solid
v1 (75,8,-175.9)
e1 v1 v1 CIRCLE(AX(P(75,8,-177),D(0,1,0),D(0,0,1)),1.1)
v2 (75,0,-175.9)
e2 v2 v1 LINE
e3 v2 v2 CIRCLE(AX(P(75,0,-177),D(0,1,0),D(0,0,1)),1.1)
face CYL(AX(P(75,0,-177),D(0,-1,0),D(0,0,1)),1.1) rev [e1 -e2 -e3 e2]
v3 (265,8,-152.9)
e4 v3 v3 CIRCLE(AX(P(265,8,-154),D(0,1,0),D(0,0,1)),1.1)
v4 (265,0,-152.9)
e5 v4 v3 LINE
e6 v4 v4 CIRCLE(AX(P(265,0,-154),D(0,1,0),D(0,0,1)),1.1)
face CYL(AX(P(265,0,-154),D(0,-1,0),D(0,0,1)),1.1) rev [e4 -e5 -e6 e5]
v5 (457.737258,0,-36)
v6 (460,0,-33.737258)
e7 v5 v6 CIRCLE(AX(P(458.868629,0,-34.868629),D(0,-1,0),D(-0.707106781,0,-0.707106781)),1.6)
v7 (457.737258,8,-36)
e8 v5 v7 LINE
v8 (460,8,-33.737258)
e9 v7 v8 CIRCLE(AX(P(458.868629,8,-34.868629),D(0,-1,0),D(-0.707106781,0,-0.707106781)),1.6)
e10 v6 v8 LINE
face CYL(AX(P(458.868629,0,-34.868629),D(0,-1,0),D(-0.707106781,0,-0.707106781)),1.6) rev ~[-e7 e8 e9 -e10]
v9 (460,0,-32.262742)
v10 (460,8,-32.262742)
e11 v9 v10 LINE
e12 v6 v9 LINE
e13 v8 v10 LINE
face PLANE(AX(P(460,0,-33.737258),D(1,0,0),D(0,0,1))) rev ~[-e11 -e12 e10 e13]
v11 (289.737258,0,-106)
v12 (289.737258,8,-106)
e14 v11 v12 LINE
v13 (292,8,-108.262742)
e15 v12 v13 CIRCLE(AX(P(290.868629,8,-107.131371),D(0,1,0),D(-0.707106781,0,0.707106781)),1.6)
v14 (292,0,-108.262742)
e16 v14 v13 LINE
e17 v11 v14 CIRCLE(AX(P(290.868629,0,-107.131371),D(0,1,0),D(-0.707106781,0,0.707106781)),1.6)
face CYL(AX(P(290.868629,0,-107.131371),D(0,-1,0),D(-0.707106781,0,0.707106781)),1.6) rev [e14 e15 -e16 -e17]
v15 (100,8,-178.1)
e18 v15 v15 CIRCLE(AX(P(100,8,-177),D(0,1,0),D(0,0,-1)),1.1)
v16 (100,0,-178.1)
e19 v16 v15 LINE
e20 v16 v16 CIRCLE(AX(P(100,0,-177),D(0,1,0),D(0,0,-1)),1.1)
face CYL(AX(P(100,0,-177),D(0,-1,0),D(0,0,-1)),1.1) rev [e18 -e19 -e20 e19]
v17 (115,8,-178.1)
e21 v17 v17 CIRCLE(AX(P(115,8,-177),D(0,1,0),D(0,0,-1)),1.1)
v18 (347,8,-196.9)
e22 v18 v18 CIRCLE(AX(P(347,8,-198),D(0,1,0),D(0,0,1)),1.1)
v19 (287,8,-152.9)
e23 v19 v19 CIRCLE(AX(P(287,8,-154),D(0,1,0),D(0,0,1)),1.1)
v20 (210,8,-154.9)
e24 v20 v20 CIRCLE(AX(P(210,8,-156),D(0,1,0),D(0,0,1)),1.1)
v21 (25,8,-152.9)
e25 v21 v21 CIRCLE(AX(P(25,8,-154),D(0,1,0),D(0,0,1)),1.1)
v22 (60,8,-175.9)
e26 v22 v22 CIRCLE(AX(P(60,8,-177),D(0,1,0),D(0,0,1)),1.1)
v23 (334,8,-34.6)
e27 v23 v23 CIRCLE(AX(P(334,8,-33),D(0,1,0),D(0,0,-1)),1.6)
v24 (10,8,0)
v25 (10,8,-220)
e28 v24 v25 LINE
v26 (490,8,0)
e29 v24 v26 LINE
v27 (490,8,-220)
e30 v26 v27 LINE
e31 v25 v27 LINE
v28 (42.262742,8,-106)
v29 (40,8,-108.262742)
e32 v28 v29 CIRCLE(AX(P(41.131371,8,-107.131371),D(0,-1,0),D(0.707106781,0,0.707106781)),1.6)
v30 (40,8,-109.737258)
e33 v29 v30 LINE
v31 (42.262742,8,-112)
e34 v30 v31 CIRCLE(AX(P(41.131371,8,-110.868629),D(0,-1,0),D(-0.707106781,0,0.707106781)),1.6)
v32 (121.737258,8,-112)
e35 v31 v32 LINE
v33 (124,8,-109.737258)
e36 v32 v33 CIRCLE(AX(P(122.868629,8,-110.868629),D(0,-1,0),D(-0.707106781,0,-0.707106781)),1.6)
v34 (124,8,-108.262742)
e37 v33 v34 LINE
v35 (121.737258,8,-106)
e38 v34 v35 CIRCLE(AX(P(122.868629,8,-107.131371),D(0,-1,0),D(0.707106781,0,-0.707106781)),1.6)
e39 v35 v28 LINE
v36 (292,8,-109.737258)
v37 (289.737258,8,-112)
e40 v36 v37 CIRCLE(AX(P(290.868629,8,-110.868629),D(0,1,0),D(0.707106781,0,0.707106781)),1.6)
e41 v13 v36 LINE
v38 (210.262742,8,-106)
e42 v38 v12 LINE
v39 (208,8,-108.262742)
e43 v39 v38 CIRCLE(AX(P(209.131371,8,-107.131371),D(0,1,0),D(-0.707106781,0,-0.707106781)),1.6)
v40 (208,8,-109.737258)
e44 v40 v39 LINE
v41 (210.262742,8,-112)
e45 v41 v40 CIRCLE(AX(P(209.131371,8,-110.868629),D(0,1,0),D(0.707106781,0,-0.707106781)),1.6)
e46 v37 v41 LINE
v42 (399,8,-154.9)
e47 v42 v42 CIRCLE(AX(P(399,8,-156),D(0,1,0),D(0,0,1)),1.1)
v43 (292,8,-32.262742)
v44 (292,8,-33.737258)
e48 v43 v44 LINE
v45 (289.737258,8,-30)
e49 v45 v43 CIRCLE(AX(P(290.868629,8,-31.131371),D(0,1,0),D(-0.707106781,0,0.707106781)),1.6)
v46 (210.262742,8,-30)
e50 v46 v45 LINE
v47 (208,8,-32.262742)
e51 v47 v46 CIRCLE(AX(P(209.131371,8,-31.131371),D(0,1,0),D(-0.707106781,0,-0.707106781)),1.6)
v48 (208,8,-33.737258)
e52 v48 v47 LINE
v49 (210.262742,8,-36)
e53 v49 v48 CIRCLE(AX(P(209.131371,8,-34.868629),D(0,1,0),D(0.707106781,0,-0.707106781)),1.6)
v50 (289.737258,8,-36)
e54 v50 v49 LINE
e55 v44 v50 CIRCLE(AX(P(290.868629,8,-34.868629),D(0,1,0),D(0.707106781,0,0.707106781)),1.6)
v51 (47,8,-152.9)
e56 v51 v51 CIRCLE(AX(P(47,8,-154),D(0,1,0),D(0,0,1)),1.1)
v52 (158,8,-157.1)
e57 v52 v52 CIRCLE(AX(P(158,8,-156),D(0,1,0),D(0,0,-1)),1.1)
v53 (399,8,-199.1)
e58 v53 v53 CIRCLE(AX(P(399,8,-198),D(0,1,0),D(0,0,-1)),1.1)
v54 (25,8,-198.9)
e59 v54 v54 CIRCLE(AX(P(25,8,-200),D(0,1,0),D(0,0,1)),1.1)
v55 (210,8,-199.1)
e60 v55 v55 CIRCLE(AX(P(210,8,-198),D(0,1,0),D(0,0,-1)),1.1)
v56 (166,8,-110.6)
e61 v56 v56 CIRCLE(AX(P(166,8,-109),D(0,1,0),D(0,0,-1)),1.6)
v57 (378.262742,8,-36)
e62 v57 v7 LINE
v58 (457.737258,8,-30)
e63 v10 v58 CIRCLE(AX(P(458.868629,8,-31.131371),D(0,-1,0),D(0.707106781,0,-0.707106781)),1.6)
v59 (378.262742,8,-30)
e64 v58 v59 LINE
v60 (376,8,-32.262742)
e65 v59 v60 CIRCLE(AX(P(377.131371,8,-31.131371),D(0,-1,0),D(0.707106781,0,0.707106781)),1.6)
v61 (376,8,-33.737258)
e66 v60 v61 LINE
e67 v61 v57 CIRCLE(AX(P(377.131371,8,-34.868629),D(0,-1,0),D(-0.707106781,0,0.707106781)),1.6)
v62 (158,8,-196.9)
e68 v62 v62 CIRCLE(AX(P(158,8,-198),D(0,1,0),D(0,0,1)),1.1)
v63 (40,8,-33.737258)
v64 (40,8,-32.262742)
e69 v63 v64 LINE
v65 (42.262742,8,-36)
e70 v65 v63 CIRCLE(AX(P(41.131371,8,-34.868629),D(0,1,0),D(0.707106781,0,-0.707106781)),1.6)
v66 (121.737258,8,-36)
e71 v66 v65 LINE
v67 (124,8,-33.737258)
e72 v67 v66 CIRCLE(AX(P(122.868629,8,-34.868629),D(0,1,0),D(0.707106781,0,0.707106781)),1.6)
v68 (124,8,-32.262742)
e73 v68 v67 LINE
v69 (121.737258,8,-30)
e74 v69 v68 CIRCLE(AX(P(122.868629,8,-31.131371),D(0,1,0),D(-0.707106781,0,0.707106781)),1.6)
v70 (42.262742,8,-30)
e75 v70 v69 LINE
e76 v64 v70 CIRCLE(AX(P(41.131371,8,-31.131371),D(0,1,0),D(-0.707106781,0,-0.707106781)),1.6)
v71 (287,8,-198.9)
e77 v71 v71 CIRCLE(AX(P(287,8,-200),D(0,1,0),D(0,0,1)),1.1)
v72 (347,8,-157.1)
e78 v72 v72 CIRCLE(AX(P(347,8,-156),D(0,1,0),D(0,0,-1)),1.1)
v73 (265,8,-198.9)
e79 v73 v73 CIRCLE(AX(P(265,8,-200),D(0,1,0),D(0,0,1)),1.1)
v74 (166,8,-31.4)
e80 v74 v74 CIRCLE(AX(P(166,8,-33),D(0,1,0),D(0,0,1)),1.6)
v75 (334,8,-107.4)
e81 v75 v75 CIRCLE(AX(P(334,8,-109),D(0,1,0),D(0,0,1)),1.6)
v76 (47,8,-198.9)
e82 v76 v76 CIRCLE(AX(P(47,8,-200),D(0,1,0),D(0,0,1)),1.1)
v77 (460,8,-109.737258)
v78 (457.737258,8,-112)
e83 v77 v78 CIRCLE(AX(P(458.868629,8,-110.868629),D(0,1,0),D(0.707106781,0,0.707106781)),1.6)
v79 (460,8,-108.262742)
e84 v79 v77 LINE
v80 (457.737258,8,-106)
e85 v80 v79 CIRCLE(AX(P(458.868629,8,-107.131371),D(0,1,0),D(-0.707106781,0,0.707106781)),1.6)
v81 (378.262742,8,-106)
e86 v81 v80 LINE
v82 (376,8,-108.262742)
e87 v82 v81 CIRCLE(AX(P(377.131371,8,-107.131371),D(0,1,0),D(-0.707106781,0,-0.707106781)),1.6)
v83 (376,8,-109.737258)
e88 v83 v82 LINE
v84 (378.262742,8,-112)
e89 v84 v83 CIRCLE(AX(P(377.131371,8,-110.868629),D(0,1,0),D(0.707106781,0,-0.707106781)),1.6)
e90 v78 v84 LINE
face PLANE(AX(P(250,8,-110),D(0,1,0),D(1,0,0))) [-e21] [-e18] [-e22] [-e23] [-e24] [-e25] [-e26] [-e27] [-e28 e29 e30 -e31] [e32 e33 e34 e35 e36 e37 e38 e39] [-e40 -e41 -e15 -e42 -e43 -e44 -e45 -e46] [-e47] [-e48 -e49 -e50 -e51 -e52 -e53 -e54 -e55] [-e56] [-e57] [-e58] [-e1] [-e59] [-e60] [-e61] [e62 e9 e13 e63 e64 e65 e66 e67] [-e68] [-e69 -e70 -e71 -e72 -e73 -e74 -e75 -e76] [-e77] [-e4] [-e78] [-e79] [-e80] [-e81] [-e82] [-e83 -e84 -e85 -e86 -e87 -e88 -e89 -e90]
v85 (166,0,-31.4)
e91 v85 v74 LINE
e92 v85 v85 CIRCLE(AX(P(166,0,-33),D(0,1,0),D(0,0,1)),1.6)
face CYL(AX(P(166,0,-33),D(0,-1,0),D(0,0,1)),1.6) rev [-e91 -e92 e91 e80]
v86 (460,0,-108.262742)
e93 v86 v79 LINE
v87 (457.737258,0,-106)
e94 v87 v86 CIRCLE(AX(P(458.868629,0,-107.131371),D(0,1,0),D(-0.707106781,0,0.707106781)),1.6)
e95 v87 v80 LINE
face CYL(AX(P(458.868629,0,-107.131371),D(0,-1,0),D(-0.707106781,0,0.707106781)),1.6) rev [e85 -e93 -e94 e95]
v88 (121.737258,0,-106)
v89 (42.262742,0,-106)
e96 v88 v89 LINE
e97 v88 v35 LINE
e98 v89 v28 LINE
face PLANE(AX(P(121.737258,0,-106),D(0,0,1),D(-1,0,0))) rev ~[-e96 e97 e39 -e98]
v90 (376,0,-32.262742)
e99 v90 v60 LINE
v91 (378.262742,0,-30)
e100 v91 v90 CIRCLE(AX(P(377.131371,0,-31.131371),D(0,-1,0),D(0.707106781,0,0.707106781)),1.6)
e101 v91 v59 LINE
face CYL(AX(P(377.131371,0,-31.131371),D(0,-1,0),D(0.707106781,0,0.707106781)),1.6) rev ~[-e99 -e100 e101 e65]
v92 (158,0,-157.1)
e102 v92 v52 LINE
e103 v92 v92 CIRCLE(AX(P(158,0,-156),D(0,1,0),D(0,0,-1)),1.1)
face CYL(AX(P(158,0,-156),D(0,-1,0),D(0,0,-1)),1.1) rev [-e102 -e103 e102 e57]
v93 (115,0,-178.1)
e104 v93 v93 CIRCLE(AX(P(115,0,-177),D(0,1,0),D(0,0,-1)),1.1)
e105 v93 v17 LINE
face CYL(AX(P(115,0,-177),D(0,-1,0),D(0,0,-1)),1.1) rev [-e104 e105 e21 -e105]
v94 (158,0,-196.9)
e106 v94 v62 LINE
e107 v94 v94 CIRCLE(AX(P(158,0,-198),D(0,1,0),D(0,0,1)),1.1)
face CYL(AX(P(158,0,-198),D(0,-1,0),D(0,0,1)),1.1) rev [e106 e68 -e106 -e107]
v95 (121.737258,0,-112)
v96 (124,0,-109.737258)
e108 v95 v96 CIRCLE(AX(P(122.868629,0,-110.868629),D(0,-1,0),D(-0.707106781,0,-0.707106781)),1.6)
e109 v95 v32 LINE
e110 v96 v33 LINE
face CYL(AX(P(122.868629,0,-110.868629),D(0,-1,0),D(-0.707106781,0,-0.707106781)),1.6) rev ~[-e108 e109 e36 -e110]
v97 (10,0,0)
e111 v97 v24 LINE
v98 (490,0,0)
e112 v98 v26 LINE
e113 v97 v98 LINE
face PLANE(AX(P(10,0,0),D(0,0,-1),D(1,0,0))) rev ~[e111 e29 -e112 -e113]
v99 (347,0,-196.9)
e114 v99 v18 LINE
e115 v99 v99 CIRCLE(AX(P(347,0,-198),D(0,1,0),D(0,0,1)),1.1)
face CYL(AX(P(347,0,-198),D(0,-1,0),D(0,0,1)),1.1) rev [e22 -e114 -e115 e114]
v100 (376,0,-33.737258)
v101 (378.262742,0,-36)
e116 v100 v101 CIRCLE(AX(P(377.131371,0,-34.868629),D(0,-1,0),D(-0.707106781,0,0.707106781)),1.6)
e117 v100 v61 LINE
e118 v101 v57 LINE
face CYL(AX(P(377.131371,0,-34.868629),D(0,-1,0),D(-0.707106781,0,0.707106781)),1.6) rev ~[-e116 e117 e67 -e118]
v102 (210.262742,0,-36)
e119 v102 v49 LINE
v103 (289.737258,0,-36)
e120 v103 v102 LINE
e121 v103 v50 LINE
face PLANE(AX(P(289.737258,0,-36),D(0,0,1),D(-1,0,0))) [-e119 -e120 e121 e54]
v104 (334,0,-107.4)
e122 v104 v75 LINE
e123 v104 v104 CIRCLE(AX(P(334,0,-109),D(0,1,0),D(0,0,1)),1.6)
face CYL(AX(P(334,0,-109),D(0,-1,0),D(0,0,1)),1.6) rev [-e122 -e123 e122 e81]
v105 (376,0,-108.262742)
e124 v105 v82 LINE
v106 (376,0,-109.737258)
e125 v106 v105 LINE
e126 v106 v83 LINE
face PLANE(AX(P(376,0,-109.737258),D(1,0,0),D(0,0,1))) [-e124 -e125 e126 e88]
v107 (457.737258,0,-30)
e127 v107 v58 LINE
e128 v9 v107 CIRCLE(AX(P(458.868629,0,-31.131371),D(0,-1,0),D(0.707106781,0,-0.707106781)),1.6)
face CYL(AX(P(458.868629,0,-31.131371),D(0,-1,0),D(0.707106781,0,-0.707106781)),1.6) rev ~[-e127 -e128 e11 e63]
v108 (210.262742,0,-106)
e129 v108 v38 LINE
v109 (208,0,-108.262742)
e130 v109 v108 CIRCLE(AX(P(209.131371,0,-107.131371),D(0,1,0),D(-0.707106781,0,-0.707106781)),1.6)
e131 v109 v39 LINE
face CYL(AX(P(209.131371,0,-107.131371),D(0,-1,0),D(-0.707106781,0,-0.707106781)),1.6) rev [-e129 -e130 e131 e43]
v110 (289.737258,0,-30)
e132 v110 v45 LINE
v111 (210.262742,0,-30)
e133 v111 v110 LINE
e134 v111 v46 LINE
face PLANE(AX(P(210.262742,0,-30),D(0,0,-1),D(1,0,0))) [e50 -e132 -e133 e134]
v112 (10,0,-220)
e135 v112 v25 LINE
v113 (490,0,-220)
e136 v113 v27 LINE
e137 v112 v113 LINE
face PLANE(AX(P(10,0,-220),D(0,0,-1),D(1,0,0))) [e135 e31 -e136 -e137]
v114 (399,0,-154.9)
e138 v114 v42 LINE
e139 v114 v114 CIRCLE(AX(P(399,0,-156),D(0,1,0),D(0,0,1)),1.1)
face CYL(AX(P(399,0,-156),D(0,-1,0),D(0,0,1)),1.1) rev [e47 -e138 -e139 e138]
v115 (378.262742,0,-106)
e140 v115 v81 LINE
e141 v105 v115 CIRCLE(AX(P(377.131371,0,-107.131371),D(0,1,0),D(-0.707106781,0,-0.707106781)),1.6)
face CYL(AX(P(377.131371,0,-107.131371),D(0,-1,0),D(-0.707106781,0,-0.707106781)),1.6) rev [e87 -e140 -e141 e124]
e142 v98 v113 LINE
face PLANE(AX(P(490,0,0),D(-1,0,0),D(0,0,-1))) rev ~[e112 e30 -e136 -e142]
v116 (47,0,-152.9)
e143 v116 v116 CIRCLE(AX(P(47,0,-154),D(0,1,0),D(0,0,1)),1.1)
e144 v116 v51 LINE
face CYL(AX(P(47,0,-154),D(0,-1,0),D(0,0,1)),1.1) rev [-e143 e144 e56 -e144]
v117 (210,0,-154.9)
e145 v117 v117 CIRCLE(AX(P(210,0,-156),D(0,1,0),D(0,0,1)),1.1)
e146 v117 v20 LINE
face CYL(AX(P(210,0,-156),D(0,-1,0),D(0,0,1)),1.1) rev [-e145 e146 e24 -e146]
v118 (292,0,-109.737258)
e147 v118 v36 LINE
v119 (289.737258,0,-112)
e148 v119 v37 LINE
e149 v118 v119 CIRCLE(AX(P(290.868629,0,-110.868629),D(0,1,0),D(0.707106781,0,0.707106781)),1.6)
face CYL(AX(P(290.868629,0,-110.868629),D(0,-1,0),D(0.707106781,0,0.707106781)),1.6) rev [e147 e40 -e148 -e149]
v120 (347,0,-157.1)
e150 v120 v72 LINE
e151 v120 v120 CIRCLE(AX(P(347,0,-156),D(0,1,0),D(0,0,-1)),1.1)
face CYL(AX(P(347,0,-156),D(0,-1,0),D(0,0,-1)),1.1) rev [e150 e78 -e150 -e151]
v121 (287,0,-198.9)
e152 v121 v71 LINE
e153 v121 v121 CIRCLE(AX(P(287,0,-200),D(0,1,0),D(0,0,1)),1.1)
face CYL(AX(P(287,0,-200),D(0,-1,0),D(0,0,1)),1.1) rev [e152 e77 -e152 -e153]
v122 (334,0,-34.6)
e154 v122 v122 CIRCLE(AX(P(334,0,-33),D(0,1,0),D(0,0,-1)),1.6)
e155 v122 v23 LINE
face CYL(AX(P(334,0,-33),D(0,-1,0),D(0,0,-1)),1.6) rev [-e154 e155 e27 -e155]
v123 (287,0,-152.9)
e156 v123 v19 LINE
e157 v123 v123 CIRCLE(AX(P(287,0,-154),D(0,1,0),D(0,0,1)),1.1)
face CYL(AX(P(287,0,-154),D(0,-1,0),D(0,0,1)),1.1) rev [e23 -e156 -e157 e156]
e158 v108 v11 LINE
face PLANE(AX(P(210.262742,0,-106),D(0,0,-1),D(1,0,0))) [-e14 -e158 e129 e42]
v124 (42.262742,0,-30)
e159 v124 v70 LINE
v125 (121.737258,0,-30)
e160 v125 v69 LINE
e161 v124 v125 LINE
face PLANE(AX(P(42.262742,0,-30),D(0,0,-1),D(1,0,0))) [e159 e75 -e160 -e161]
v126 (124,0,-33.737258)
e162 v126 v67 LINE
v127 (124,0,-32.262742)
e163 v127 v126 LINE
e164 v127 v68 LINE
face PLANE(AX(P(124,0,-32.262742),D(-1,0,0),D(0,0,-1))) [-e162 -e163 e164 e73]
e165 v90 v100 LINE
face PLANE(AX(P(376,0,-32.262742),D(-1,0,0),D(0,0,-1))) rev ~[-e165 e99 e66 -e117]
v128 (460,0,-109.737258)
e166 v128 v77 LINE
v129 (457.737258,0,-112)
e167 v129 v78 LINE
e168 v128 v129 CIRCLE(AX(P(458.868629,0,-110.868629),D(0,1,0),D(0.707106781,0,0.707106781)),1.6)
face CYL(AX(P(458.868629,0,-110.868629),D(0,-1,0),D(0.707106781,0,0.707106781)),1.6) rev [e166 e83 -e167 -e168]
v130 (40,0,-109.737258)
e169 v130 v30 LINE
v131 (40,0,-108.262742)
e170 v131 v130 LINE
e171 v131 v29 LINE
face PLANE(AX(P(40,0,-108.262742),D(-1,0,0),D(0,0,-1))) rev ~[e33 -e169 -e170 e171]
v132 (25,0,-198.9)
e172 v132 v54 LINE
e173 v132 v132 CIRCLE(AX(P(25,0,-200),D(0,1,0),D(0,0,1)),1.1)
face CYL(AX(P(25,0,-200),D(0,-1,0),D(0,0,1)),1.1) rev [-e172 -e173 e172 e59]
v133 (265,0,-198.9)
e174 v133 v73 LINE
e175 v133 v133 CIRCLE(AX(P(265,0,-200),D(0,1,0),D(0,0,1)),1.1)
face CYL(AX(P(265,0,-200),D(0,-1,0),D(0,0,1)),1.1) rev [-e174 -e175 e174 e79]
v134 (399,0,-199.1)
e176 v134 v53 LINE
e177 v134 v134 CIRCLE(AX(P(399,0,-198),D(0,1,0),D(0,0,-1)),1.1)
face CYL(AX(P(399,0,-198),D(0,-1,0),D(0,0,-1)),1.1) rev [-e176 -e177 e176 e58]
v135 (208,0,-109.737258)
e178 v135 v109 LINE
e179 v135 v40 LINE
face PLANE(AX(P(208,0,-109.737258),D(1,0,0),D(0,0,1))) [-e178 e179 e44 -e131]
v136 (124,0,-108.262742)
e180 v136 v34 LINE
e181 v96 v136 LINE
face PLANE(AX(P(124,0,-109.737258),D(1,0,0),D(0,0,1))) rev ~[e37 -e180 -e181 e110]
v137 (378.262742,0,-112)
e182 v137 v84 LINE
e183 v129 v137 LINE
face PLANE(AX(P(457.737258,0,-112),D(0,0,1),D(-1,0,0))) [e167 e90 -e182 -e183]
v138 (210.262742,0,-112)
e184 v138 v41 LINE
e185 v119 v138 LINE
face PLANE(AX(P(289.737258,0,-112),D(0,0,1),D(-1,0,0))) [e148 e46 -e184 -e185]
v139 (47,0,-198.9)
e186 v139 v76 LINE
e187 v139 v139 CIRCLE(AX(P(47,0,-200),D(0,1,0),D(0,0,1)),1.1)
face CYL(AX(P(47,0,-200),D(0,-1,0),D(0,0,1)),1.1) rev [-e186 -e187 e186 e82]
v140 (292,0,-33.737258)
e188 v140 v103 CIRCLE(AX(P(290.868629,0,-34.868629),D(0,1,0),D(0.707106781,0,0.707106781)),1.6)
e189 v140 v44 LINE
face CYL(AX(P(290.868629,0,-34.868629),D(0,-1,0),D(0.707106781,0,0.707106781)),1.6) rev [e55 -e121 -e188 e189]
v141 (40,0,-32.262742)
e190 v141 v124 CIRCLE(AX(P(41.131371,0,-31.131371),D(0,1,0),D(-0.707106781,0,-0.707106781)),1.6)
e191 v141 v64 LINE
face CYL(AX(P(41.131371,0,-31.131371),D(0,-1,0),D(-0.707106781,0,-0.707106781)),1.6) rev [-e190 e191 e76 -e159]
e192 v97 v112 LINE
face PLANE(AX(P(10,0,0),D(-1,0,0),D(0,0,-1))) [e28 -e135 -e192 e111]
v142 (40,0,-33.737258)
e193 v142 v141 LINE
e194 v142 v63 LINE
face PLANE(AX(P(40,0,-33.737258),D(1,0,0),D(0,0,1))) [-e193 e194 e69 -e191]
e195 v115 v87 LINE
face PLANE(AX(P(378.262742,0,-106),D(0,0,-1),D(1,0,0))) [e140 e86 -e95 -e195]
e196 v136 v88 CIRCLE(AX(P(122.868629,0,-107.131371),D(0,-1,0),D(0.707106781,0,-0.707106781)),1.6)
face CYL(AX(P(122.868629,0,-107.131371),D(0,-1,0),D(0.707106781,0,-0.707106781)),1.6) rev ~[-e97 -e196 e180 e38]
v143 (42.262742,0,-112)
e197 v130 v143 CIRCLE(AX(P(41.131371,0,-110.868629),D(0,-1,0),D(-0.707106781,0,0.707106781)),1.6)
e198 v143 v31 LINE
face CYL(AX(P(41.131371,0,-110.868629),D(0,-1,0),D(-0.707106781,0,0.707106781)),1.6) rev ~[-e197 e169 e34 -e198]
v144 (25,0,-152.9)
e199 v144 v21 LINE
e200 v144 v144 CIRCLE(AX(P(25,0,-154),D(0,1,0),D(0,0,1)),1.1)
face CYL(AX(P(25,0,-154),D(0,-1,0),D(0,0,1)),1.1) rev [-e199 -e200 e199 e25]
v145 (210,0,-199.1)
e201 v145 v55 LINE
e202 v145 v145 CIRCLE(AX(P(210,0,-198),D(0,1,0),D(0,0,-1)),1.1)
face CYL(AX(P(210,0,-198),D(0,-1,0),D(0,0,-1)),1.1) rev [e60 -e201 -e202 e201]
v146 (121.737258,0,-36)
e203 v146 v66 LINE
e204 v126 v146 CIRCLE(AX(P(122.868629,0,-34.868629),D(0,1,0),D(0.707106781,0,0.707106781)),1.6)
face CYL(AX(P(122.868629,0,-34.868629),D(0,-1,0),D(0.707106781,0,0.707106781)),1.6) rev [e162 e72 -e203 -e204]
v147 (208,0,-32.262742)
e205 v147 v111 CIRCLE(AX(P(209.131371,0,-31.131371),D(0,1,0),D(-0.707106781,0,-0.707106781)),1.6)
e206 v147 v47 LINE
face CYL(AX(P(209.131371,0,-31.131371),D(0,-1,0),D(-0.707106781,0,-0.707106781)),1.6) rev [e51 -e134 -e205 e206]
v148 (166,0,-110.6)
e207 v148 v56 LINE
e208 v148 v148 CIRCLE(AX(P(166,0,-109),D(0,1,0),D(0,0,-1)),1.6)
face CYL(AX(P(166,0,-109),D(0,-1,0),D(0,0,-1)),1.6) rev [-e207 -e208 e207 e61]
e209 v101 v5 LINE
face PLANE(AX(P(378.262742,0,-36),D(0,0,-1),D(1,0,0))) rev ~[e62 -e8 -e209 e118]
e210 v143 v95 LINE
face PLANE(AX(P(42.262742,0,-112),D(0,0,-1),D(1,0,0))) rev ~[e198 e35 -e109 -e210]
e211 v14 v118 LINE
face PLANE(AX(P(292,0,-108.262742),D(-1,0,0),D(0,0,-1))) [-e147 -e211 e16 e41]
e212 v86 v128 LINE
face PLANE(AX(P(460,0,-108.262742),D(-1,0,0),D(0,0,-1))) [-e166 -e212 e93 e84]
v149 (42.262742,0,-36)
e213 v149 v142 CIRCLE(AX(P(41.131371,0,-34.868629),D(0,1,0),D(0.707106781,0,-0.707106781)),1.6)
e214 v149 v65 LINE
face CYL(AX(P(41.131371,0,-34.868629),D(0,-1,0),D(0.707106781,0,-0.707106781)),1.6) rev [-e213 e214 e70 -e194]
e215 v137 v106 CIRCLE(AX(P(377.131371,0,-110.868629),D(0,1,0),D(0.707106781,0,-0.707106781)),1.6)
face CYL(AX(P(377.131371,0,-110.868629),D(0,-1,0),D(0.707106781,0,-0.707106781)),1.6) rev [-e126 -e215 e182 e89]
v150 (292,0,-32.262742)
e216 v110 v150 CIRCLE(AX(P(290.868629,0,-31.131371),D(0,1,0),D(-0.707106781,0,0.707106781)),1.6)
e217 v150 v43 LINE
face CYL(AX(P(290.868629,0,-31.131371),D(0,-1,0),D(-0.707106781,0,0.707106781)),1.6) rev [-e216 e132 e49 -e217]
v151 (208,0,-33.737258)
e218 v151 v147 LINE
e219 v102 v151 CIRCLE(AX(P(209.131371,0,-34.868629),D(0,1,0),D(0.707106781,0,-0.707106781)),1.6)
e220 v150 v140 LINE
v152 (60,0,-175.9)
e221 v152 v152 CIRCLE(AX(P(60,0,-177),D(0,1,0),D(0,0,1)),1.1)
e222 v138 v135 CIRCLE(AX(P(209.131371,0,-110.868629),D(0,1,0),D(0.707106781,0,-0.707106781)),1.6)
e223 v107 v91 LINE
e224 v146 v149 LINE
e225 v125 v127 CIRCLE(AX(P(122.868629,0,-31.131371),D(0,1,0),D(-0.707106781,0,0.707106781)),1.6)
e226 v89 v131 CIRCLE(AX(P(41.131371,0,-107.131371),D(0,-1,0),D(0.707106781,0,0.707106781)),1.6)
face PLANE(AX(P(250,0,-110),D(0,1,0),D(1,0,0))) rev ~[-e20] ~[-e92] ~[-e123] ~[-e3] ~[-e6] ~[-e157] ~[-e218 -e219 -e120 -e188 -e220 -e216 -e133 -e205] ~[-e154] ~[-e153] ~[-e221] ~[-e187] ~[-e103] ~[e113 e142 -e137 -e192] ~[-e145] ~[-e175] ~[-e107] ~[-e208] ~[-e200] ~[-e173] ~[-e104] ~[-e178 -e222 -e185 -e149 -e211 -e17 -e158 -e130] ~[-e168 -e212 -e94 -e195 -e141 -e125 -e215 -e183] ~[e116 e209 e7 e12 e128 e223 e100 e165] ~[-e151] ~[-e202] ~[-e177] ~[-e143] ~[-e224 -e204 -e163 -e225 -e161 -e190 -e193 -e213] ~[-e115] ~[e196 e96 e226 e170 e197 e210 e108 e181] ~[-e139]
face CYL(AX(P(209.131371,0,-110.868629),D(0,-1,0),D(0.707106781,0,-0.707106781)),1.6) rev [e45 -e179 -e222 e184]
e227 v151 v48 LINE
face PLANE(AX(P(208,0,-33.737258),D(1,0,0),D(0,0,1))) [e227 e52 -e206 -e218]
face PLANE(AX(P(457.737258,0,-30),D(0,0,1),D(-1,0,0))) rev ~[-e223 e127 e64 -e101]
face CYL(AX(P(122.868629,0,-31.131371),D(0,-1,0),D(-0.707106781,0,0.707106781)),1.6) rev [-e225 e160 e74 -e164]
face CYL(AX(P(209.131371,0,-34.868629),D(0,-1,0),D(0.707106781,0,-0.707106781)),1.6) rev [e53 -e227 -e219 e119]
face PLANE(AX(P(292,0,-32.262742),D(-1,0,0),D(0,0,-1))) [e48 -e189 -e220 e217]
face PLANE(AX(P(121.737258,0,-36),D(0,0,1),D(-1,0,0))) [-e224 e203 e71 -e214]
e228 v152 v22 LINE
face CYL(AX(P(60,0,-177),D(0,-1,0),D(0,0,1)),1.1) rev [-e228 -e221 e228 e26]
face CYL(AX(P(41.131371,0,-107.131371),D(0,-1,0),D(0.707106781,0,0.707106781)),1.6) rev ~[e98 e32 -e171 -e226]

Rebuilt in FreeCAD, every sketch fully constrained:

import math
import FreeCAD as App
import Part
import Sketcher


def add_polygon(sketch, points):
    """Adds a closed chain of lines whose ends are joined by coincident constraints."""
    first, n = sketch.GeometryCount, len(points)
    for a, b in zip(points, points[1:] + points[:1]):
        sketch.addGeometry(Part.LineSegment(App.Vector(*a, 0), App.Vector(*b, 0)), False)
    for i in range(n):
        sketch.addConstraint(Sketcher.Constraint("Coincident", first + i, 2, first + (i + 1) % n, 1))

doc = App.newDocument("Part")
body = doc.addObject("PartDesign::Body", "Body")

sketch1 = body.newObject("Sketcher::SketchObject", "Sketch")
sketch1.AttachmentSupport = (doc.getObject("XZ_Plane"), [""])
sketch1.MapMode = "FlatFace"
add_polygon(sketch1, [(10, -220), (10, 0), (490, 0), (490, -220)])
sketch1.addGeometry(Part.LineSegment(App.Vector(40, -32.3, 0), App.Vector(40, -33.7, 0)), False)
sketch1.addGeometry(Part.ArcOfCircle(Part.Circle(App.Vector(41.1, -34.9, 0), App.Vector(0, 0, 1), 1.6), math.radians(135), math.radians(315)), False)
sketch1.addGeometry(Part.LineSegment(App.Vector(42.3, -36, 0), App.Vector(121.7, -36, 0)), False)
sketch1.addGeometry(Part.ArcOfCircle(Part.Circle(App.Vector(122.9, -34.9, 0), App.Vector(0, 0, 1), 1.6), math.radians(-135), math.radians(45)), False)
sketch1.addGeometry(Part.LineSegment(App.Vector(124, -33.7, 0), App.Vector(124, -32.3, 0)), False)
sketch1.addGeometry(Part.ArcOfCircle(Part.Circle(App.Vector(122.9, -31.1, 0), App.Vector(0, 0, 1), 1.6), math.radians(-45), math.radians(135)), False)
sketch1.addGeometry(Part.LineSegment(App.Vector(121.7, -30, 0), App.Vector(42.3, -30, 0)), False)
sketch1.addGeometry(Part.ArcOfCircle(Part.Circle(App.Vector(41.1, -31.1, 0), App.Vector(0, 0, 1), 1.6), math.radians(45), math.radians(225)), False)
sketch1.addGeometry(Part.Circle(App.Vector(166, -33, 0), App.Vector(0, 0, 1), 1.6), False)
sketch1.addGeometry(Part.ArcOfCircle(Part.Circle(App.Vector(122.9, -107.1, 0), App.Vector(0, 0, 1), 1.6), math.radians(-45), math.radians(135)), False)
sketch1.addGeometry(Part.LineSegment(App.Vector(121.7, -106, 0), App.Vector(42.3, -106, 0)), False)
sketch1.addGeometry(Part.ArcOfCircle(Part.Circle(App.Vector(41.1, -107.1, 0), App.Vector(0, 0, 1), 1.6), math.radians(45), math.radians(225)), False)
sketch1.addGeometry(Part.LineSegment(App.Vector(40, -108.3, 0), App.Vector(40, -109.7, 0)), False)
sketch1.addGeometry(Part.ArcOfCircle(Part.Circle(App.Vector(41.1, -110.9, 0), App.Vector(0, 0, 1), 1.6), math.radians(135), math.radians(315)), False)
sketch1.addGeometry(Part.LineSegment(App.Vector(42.3, -112, 0), App.Vector(121.7, -112, 0)), False)
sketch1.addGeometry(Part.ArcOfCircle(Part.Circle(App.Vector(122.9, -110.9, 0), App.Vector(0, 0, 1), 1.6), math.radians(-135), math.radians(45)), False)
sketch1.addGeometry(Part.LineSegment(App.Vector(124, -109.7, 0), App.Vector(124, -108.3, 0)), False)
sketch1.addGeometry(Part.Circle(App.Vector(166, -109, 0), App.Vector(0, 0, 1), 1.6), False)
sketch1.addGeometry(Part.LineSegment(App.Vector(208, -32.3, 0), App.Vector(208, -33.7, 0)), False)
sketch1.addGeometry(Part.ArcOfCircle(Part.Circle(App.Vector(209.1, -34.9, 0), App.Vector(0, 0, 1), 1.6), math.radians(135), math.radians(315)), False)
sketch1.addGeometry(Part.LineSegment(App.Vector(210.3, -36, 0), App.Vector(289.7, -36, 0)), False)
sketch1.addGeometry(Part.ArcOfCircle(Part.Circle(App.Vector(290.9, -34.9, 0), App.Vector(0, 0, 1), 1.6), math.radians(-135), math.radians(45)), False)
sketch1.addGeometry(Part.LineSegment(App.Vector(292, -33.7, 0), App.Vector(292, -32.3, 0)), False)
sketch1.addGeometry(Part.ArcOfCircle(Part.Circle(App.Vector(290.9, -31.1, 0), App.Vector(0, 0, 1), 1.6), math.radians(-45), math.radians(135)), False)
sketch1.addGeometry(Part.LineSegment(App.Vector(289.7, -30, 0), App.Vector(210.3, -30, 0)), False)
sketch1.addGeometry(Part.ArcOfCircle(Part.Circle(App.Vector(209.1, -31.1, 0), App.Vector(0, 0, 1), 1.6), math.radians(45), math.radians(225)), False)
sketch1.addGeometry(Part.Circle(App.Vector(334, -33, 0), App.Vector(0, 0, 1), 1.6), False)
sketch1.addGeometry(Part.ArcOfCircle(Part.Circle(App.Vector(377.1, -34.9, 0), App.Vector(0, 0, 1), 1.6), math.radians(135), math.radians(315)), False)
sketch1.addGeometry(Part.LineSegment(App.Vector(378.3, -36, 0), App.Vector(457.7, -36, 0)), False)
sketch1.addGeometry(Part.ArcOfCircle(Part.Circle(App.Vector(458.9, -34.9, 0), App.Vector(0, 0, 1), 1.6), math.radians(-135), math.radians(45)), False)
sketch1.addGeometry(Part.LineSegment(App.Vector(460, -33.7, 0), App.Vector(460, -32.3, 0)), False)
sketch1.addGeometry(Part.ArcOfCircle(Part.Circle(App.Vector(458.9, -31.1, 0), App.Vector(0, 0, 1), 1.6), math.radians(-45), math.radians(135)), False)
sketch1.addGeometry(Part.LineSegment(App.Vector(457.7, -30, 0), App.Vector(378.3, -30, 0)), False)
sketch1.addGeometry(Part.ArcOfCircle(Part.Circle(App.Vector(377.1, -31.1, 0), App.Vector(0, 0, 1), 1.6), math.radians(45), math.radians(225)), False)
sketch1.addGeometry(Part.LineSegment(App.Vector(376, -32.3, 0), App.Vector(376, -33.7, 0)), False)
sketch1.addGeometry(Part.LineSegment(App.Vector(210.3, -112, 0), App.Vector(289.7, -112, 0)), False)
sketch1.addGeometry(Part.ArcOfCircle(Part.Circle(App.Vector(290.9, -110.9, 0), App.Vector(0, 0, 1), 1.6), math.radians(-135), math.radians(45)), False)
sketch1.addGeometry(Part.LineSegment(App.Vector(292, -109.7, 0), App.Vector(292, -108.3, 0)), False)
sketch1.addGeometry(Part.ArcOfCircle(Part.Circle(App.Vector(290.9, -107.1, 0), App.Vector(0, 0, 1), 1.6), math.radians(-45), math.radians(135)), False)
sketch1.addGeometry(Part.LineSegment(App.Vector(289.7, -106, 0), App.Vector(210.3, -106, 0)), False)
sketch1.addGeometry(Part.ArcOfCircle(Part.Circle(App.Vector(209.1, -107.1, 0), App.Vector(0, 0, 1), 1.6), math.radians(45), math.radians(225)), False)
sketch1.addGeometry(Part.LineSegment(App.Vector(208, -108.3, 0), App.Vector(208, -109.7, 0)), False)
sketch1.addGeometry(Part.ArcOfCircle(Part.Circle(App.Vector(209.1, -110.9, 0), App.Vector(0, 0, 1), 1.6), math.radians(135), math.radians(315)), False)
sketch1.addGeometry(Part.Circle(App.Vector(334, -109, 0), App.Vector(0, 0, 1), 1.6), False)
sketch1.addGeometry(Part.LineSegment(App.Vector(460, -109.7, 0), App.Vector(460, -108.3, 0)), False)
sketch1.addGeometry(Part.ArcOfCircle(Part.Circle(App.Vector(458.9, -107.1, 0), App.Vector(0, 0, 1), 1.6), math.radians(-45), math.radians(135)), False)
sketch1.addGeometry(Part.LineSegment(App.Vector(457.7, -106, 0), App.Vector(378.3, -106, 0)), False)
sketch1.addGeometry(Part.ArcOfCircle(Part.Circle(App.Vector(377.1, -107.1, 0), App.Vector(0, 0, 1), 1.6), math.radians(45), math.radians(225)), False)
sketch1.addGeometry(Part.LineSegment(App.Vector(376, -108.3, 0), App.Vector(376, -109.7, 0)), False)
sketch1.addGeometry(Part.ArcOfCircle(Part.Circle(App.Vector(377.1, -110.9, 0), App.Vector(0, 0, 1), 1.6), math.radians(135), math.radians(315)), False)
sketch1.addGeometry(Part.LineSegment(App.Vector(378.3, -112, 0), App.Vector(457.7, -112, 0)), False)
sketch1.addGeometry(Part.ArcOfCircle(Part.Circle(App.Vector(458.9, -110.9, 0), App.Vector(0, 0, 1), 1.6), math.radians(-135), math.radians(45)), False)
sketch1.addGeometry(Part.Circle(App.Vector(25, -154, 0), App.Vector(0, 0, 1), 1.1), False)
sketch1.addGeometry(Part.Circle(App.Vector(47, -154, 0), App.Vector(0, 0, 1), 1.1), False)
sketch1.addGeometry(Part.Circle(App.Vector(158, -156, 0), App.Vector(0, 0, 1), 1.1), False)
sketch1.addGeometry(Part.Circle(App.Vector(210, -156, 0), App.Vector(0, 0, 1), 1.1), False)
sketch1.addGeometry(Part.Circle(App.Vector(60, -177, 0), App.Vector(0, 0, 1), 1.1), False)
sketch1.addGeometry(Part.Circle(App.Vector(75, -177, 0), App.Vector(0, 0, 1), 1.1), False)
sketch1.addGeometry(Part.Circle(App.Vector(100, -177, 0), App.Vector(0, 0, 1), 1.1), False)
sketch1.addGeometry(Part.Circle(App.Vector(115, -177, 0), App.Vector(0, 0, 1), 1.1), False)
sketch1.addGeometry(Part.Circle(App.Vector(25, -200, 0), App.Vector(0, 0, 1), 1.1), False)
sketch1.addGeometry(Part.Circle(App.Vector(47, -200, 0), App.Vector(0, 0, 1), 1.1), False)
sketch1.addGeometry(Part.Circle(App.Vector(158, -198, 0), App.Vector(0, 0, 1), 1.1), False)
sketch1.addGeometry(Part.Circle(App.Vector(210, -198, 0), App.Vector(0, 0, 1), 1.1), False)
sketch1.addGeometry(Part.Circle(App.Vector(265, -154, 0), App.Vector(0, 0, 1), 1.1), False)
sketch1.addGeometry(Part.Circle(App.Vector(287, -154, 0), App.Vector(0, 0, 1), 1.1), False)
sketch1.addGeometry(Part.Circle(App.Vector(347, -156, 0), App.Vector(0, 0, 1), 1.1), False)
sketch1.addGeometry(Part.Circle(App.Vector(399, -156, 0), App.Vector(0, 0, 1), 1.1), False)
sketch1.addGeometry(Part.Circle(App.Vector(265, -200, 0), App.Vector(0, 0, 1), 1.1), False)
sketch1.addGeometry(Part.Circle(App.Vector(287, -200, 0), App.Vector(0, 0, 1), 1.1), False)
sketch1.addGeometry(Part.Circle(App.Vector(347, -198, 0), App.Vector(0, 0, 1), 1.1), False)
sketch1.addGeometry(Part.Circle(App.Vector(399, -198, 0), App.Vector(0, 0, 1), 1.1), False)
sketch1.addConstraint([
    Sketcher.Constraint("Coincident", 4, 2, 5, 1),
    Sketcher.Constraint("Coincident", 5, 2, 6, 1),
    Sketcher.Constraint("Coincident", 6, 2, 7, 1),
    Sketcher.Constraint("Coincident", 7, 2, 8, 1),
    Sketcher.Constraint("Coincident", 8, 2, 9, 1),
    Sketcher.Constraint("Coincident", 9, 2, 10, 1),
    Sketcher.Constraint("Coincident", 10, 2, 11, 1),
    Sketcher.Constraint("Coincident", 11, 2, 4, 1),
    Sketcher.Constraint("Coincident", 13, 2, 14, 1),
    Sketcher.Constraint("Coincident", 14, 2, 15, 1),
    Sketcher.Constraint("Coincident", 15, 2, 16, 1),
    Sketcher.Constraint("Coincident", 16, 2, 17, 1),
    Sketcher.Constraint("Coincident", 17, 2, 18, 1),
    Sketcher.Constraint("Coincident", 18, 2, 19, 1),
    Sketcher.Constraint("Coincident", 19, 2, 20, 1),
    Sketcher.Constraint("Coincident", 20, 2, 13, 1),
    Sketcher.Constraint("Coincident", 22, 2, 23, 1),
    Sketcher.Constraint("Coincident", 23, 2, 24, 1),
    Sketcher.Constraint("Coincident", 24, 2, 25, 1),
    Sketcher.Constraint("Coincident", 25, 2, 26, 1),
    Sketcher.Constraint("Coincident", 26, 2, 27, 1),
    Sketcher.Constraint("Coincident", 27, 2, 28, 1),
    Sketcher.Constraint("Coincident", 28, 2, 29, 1),
    Sketcher.Constraint("Coincident", 29, 2, 22, 1),
    Sketcher.Constraint("Coincident", 31, 2, 32, 1),
    Sketcher.Constraint("Coincident", 32, 2, 33, 1),
    Sketcher.Constraint("Coincident", 33, 2, 34, 1),
    Sketcher.Constraint("Coincident", 34, 2, 35, 1),
    Sketcher.Constraint("Coincident", 35, 2, 36, 1),
    Sketcher.Constraint("Coincident", 36, 2, 37, 1),
    Sketcher.Constraint("Coincident", 37, 2, 38, 1),
    Sketcher.Constraint("Coincident", 38, 2, 31, 1),
    Sketcher.Constraint("Coincident", 39, 2, 40, 1),
    Sketcher.Constraint("Coincident", 40, 2, 41, 1),
    Sketcher.Constraint("Coincident", 41, 2, 42, 1),
    Sketcher.Constraint("Coincident", 42, 2, 43, 1),
    Sketcher.Constraint("Coincident", 43, 2, 44, 1),
    Sketcher.Constraint("Coincident", 44, 2, 45, 1),
    Sketcher.Constraint("Coincident", 45, 2, 46, 1),
    Sketcher.Constraint("Coincident", 46, 2, 39, 1),
    Sketcher.Constraint("Coincident", 48, 2, 49, 1),
    Sketcher.Constraint("Coincident", 49, 2, 50, 1),
    Sketcher.Constraint("Coincident", 50, 2, 51, 1),
    Sketcher.Constraint("Coincident", 51, 2, 52, 1),
    Sketcher.Constraint("Coincident", 52, 2, 53, 1),
    Sketcher.Constraint("Coincident", 53, 2, 54, 1),
    Sketcher.Constraint("Coincident", 54, 2, 55, 1),
    Sketcher.Constraint("Coincident", 55, 2, 48, 1),
    Sketcher.Constraint("Vertical", 0),
    Sketcher.Constraint("Horizontal", 1),
    Sketcher.Constraint("Vertical", 2),
    Sketcher.Constraint("Horizontal", 3),
    Sketcher.Constraint("Vertical", 4),
    Sketcher.Constraint("Horizontal", 6),
    Sketcher.Constraint("Vertical", 8),
    Sketcher.Constraint("Horizontal", 10),
    Sketcher.Constraint("Horizontal", 14),
    Sketcher.Constraint("Vertical", 16),
    Sketcher.Constraint("Horizontal", 18),
    Sketcher.Constraint("Vertical", 20),
    Sketcher.Constraint("Vertical", 22),
    Sketcher.Constraint("Horizontal", 24),
    Sketcher.Constraint("Vertical", 26),
    Sketcher.Constraint("Horizontal", 28),
    Sketcher.Constraint("Horizontal", 32),
    Sketcher.Constraint("Vertical", 34),
    Sketcher.Constraint("Horizontal", 36),
    Sketcher.Constraint("Vertical", 38),
    Sketcher.Constraint("Horizontal", 39),
    Sketcher.Constraint("Vertical", 41),
    Sketcher.Constraint("Horizontal", 43),
    Sketcher.Constraint("Vertical", 45),
    Sketcher.Constraint("Vertical", 48),
    Sketcher.Constraint("Horizontal", 50),
    Sketcher.Constraint("Vertical", 52),
    Sketcher.Constraint("Horizontal", 54),
    Sketcher.Constraint("Equal", 5, 7),
    Sketcher.Constraint("Equal", 7, 9),
    Sketcher.Constraint("Equal", 9, 11),
    Sketcher.Constraint("Equal", 11, 12),
    Sketcher.Constraint("Equal", 12, 13),
    Sketcher.Constraint("Equal", 13, 15),
    Sketcher.Constraint("Equal", 15, 17),
    Sketcher.Constraint("Equal", 17, 19),
    Sketcher.Constraint("Equal", 19, 21),
    Sketcher.Constraint("Equal", 21, 23),
    Sketcher.Constraint("Equal", 23, 25),
    Sketcher.Constraint("Equal", 25, 27),
    Sketcher.Constraint("Equal", 27, 29),
    Sketcher.Constraint("Equal", 29, 30),
    Sketcher.Constraint("Equal", 30, 31),
    Sketcher.Constraint("Equal", 31, 33),
    Sketcher.Constraint("Equal", 33, 35),
    Sketcher.Constraint("Equal", 35, 37),
    Sketcher.Constraint("Equal", 37, 40),
    Sketcher.Constraint("Equal", 40, 42),
    Sketcher.Constraint("Equal", 42, 44),
    Sketcher.Constraint("Equal", 44, 46),
    Sketcher.Constraint("Equal", 46, 47),
    Sketcher.Constraint("Equal", 47, 49),
    Sketcher.Constraint("Equal", 49, 51),
    Sketcher.Constraint("Equal", 51, 53),
    Sketcher.Constraint("Equal", 53, 55),
    Sketcher.Constraint("Equal", 56, 57),
    Sketcher.Constraint("Equal", 57, 58),
    Sketcher.Constraint("Equal", 58, 59),
    Sketcher.Constraint("Equal", 59, 60),
    Sketcher.Constraint("Equal", 60, 61),
    Sketcher.Constraint("Equal", 61, 62),
    Sketcher.Constraint("Equal", 62, 63),
    Sketcher.Constraint("Equal", 63, 64),
    Sketcher.Constraint("Equal", 64, 65),
    Sketcher.Constraint("Equal", 65, 66),
    Sketcher.Constraint("Equal", 66, 67),
    Sketcher.Constraint("Equal", 67, 68),
    Sketcher.Constraint("Equal", 68, 69),
    Sketcher.Constraint("Equal", 69, 70),
    Sketcher.Constraint("Equal", 70, 71),
    Sketcher.Constraint("Equal", 71, 72),
    Sketcher.Constraint("Equal", 72, 73),
    Sketcher.Constraint("Equal", 73, 74),
    Sketcher.Constraint("Equal", 74, 75),
    Sketcher.Constraint("PointOnObject", 0, 2, -1),
    Sketcher.Constraint("Horizontal", 5, 3, 7, 3),
    Sketcher.Constraint("Horizontal", 9, 3, 11, 3),
    Sketcher.Constraint("Horizontal", 13, 3, 15, 3),
    Sketcher.Constraint("Horizontal", 17, 3, 19, 3),
    Sketcher.Constraint("Horizontal", 7, 3, 23, 3),
    Sketcher.Constraint("Horizontal", 23, 3, 25, 3),
    Sketcher.Constraint("Horizontal", 11, 3, 27, 3),
    Sketcher.Constraint("Horizontal", 27, 3, 29, 3),
    Sketcher.Constraint("Horizontal", 12, 3, 30, 3),
    Sketcher.Constraint("Horizontal", 25, 3, 31, 3),
    Sketcher.Constraint("Horizontal", 31, 3, 33, 3),
    Sketcher.Constraint("Horizontal", 29, 3, 35, 3),
    Sketcher.Constraint("Horizontal", 35, 3, 37, 3),
    Sketcher.Constraint("Horizontal", 19, 3, 40, 3),
    Sketcher.Constraint("Horizontal", 15, 3, 42, 3),
    Sketcher.Constraint("Horizontal", 42, 3, 44, 3),
    Sketcher.Constraint("Horizontal", 40, 3, 46, 3),
    Sketcher.Constraint("Horizontal", 21, 3, 47, 3),
    Sketcher.Constraint("Horizontal", 44, 3, 49, 3),
    Sketcher.Constraint("Horizontal", 49, 3, 51, 3),
    Sketcher.Constraint("Horizontal", 46, 3, 53, 3),
    Sketcher.Constraint("Horizontal", 53, 3, 55, 3),
    Sketcher.Constraint("Horizontal", 56, 3, 57, 3),
    Sketcher.Constraint("Horizontal", 58, 3, 59, 3),
    Sketcher.Constraint("Horizontal", 60, 3, 61, 3),
    Sketcher.Constraint("Horizontal", 61, 3, 62, 3),
    Sketcher.Constraint("Horizontal", 62, 3, 63, 3),
    Sketcher.Constraint("Horizontal", 64, 3, 65, 3),
    Sketcher.Constraint("Horizontal", 66, 3, 67, 3),
    Sketcher.Constraint("Horizontal", 57, 3, 68, 3),
    Sketcher.Constraint("Horizontal", 68, 3, 69, 3),
    Sketcher.Constraint("Horizontal", 59, 3, 70, 3),
    Sketcher.Constraint("Horizontal", 70, 3, 71, 3),
    Sketcher.Constraint("Horizontal", 65, 3, 72, 3),
    Sketcher.Constraint("Horizontal", 72, 3, 73, 3),
    Sketcher.Constraint("Horizontal", 67, 3, 74, 3),
    Sketcher.Constraint("Horizontal", 74, 3, 75, 3),
    Sketcher.Constraint("Horizontal", 4, 2, 7, 2),
    Sketcher.Constraint("Horizontal", 8, 2, 11, 2),
    Sketcher.Constraint("Horizontal", 16, 2, 19, 2),
    Sketcher.Constraint("Horizontal", 15, 2, 20, 2),
    Sketcher.Constraint("Horizontal", 7, 2, 22, 2),
    Sketcher.Constraint("Horizontal", 6, 2, 23, 2),
    Sketcher.Constraint("Horizontal", 22, 2, 25, 2),
    Sketcher.Constraint("Horizontal", 11, 2, 26, 2),
    Sketcher.Constraint("Horizontal", 10, 2, 27, 2),
    Sketcher.Constraint("Horizontal", 26, 2, 29, 2),
    Sketcher.Constraint("Horizontal", 24, 2, 31, 2),
    Sketcher.Constraint("Horizontal", 25, 2, 33, 2),
    Sketcher.Constraint("Horizontal", 29, 2, 34, 2),
    Sketcher.Constraint("Horizontal", 28, 2, 35, 2),
    Sketcher.Constraint("Horizontal", 34, 2, 37, 2),
    Sketcher.Constraint("Horizontal", 33, 2, 38, 2),
    Sketcher.Constraint("Horizontal", 18, 2, 39, 2),
    Sketcher.Constraint("Horizontal", 19, 2, 40, 2),
    Sketcher.Constraint("Horizontal", 20, 2, 41, 2),
    Sketcher.Constraint("Horizontal", 14, 2, 42, 2),
    Sketcher.Constraint("Horizontal", 41, 2, 44, 2),
    Sketcher.Constraint("Horizontal", 40, 2, 45, 2),
    Sketcher.Constraint("Horizontal", 44, 2, 48, 2),
    Sketcher.Constraint("Horizontal", 43, 2, 49, 2),
    Sketcher.Constraint("Horizontal", 48, 2, 51, 2),
    Sketcher.Constraint("Horizontal", 45, 2, 52, 2),
    Sketcher.Constraint("Horizontal", 46, 2, 53, 2),
    Sketcher.Constraint("Horizontal", 52, 2, 55, 2),
    Sketcher.Constraint("Vertical", 7, 3, 9, 3),
    Sketcher.Constraint("Vertical", 9, 3, 13, 3),
    Sketcher.Constraint("Vertical", 11, 3, 15, 3),
    Sketcher.Constraint("Vertical", 15, 3, 17, 3),
    Sketcher.Constraint("Vertical", 12, 3, 21, 3),
    Sketcher.Constraint("Vertical", 27, 3, 40, 3),
    Sketcher.Constraint("Vertical", 29, 3, 44, 3),
    Sketcher.Constraint("Vertical", 30, 3, 47, 3),
    Sketcher.Constraint("Vertical", 35, 3, 49, 3),
    Sketcher.Constraint("Vertical", 37, 3, 51, 3),
    Sketcher.Constraint("Vertical", 56, 3, 64, 3),
    Sketcher.Constraint("Vertical", 57, 3, 65, 3),
    Sketcher.Constraint("Vertical", 58, 3, 66, 3),
    Sketcher.Constraint("Vertical", 59, 3, 67, 3),
    Sketcher.Constraint("Vertical", 68, 3, 72, 3),
    Sketcher.Constraint("Vertical", 69, 3, 73, 3),
    Sketcher.Constraint("Vertical", 70, 3, 74, 3),
    Sketcher.Constraint("Vertical", 71, 3, 75, 3),
    Sketcher.Constraint("Vertical", 6, 2, 9, 2),
    Sketcher.Constraint("Vertical", 9, 2, 13, 2),
    Sketcher.Constraint("Vertical", 11, 2, 15, 2),
    Sketcher.Constraint("Vertical", 14, 2, 17, 2),
    Sketcher.Constraint("Equal", 18, 24),
    Sketcher.Constraint("Equal", 28, 32),
    Sketcher.Constraint("Equal", 8, 16),
    Sketcher.Constraint("Diameter", 12, 3.2),
    Sketcher.Constraint("Diameter", 56, 2.2),
    Sketcher.Constraint("DistanceX", 1, 1, 1, 2, 480.0),
    Sketcher.Constraint("DistanceY", 0, 1, 0, 2, 220.0),
    Sketcher.Constraint("DistanceX", -1, 1, 12, 3, 166.0),
    Sketcher.Constraint("DistanceY", 12, 3, -1, 1, 33.0),
    Sketcher.Constraint("DistanceY", 21, 3, -1, 1, 109.0),
    Sketcher.Constraint("DistanceX", -1, 1, 30, 3, 334.0),
    Sketcher.Constraint("DistanceX", -1, 1, 56, 3, 25.0),
    Sketcher.Constraint("DistanceY", 56, 3, -1, 1, 154.0),
    Sketcher.Constraint("DistanceX", -1, 1, 57, 3, 47.0),
    Sketcher.Constraint("DistanceX", -1, 1, 58, 3, 158.0),
    Sketcher.Constraint("DistanceY", 58, 3, -1, 1, 156.0),
    Sketcher.Constraint("DistanceX", -1, 1, 59, 3, 210.0),
    Sketcher.Constraint("DistanceX", -1, 1, 60, 3, 60.0),
    Sketcher.Constraint("DistanceY", 60, 3, -1, 1, 177.0),
    Sketcher.Constraint("DistanceX", -1, 1, 61, 3, 75.0),
    Sketcher.Constraint("DistanceX", -1, 1, 62, 3, 100.0),
    Sketcher.Constraint("DistanceX", -1, 1, 63, 3, 115.0),
    Sketcher.Constraint("DistanceY", 64, 3, -1, 1, 200.0),
    Sketcher.Constraint("DistanceY", 66, 3, -1, 1, 198.0),
    Sketcher.Constraint("DistanceX", -1, 1, 68, 3, 265.0),
    Sketcher.Constraint("DistanceX", -1, 1, 69, 3, 287.0),
    Sketcher.Constraint("DistanceX", -1, 1, 70, 3, 347.0),
    Sketcher.Constraint("DistanceX", -1, 1, 71, 3, 399.0),
    Sketcher.Constraint("DistanceX", -1, 1, 0, 2, 10.0),
    Sketcher.Constraint("DistanceX", -1, 1, 4, 2, 40.0),
    Sketcher.Constraint("DistanceY", 5, 2, -1, 1, 36.0),
    Sketcher.Constraint("DistanceX", -1, 1, 7, 2, 124.0),
    Sketcher.Constraint("DistanceY", 9, 2, -1, 1, 30.0),
    Sketcher.Constraint("DistanceY", 13, 2, -1, 1, 106.0),
    Sketcher.Constraint("DistanceX", -1, 1, 22, 2, 208.0),
    Sketcher.Constraint("DistanceX", -1, 1, 33, 2, 460.0),
    Sketcher.Constraint("DistanceX", 6, 1, 6, 2, 79.474517),
    Sketcher.Constraint("DistanceX", -1, 1, 5, 3, 41.131371),
])
pad1 = body.newObject("PartDesign::Pad", "Pad")
pad1.Profile = sketch1
pad1.Length = 8
pad1.Reversed = True

doc.recompute()
